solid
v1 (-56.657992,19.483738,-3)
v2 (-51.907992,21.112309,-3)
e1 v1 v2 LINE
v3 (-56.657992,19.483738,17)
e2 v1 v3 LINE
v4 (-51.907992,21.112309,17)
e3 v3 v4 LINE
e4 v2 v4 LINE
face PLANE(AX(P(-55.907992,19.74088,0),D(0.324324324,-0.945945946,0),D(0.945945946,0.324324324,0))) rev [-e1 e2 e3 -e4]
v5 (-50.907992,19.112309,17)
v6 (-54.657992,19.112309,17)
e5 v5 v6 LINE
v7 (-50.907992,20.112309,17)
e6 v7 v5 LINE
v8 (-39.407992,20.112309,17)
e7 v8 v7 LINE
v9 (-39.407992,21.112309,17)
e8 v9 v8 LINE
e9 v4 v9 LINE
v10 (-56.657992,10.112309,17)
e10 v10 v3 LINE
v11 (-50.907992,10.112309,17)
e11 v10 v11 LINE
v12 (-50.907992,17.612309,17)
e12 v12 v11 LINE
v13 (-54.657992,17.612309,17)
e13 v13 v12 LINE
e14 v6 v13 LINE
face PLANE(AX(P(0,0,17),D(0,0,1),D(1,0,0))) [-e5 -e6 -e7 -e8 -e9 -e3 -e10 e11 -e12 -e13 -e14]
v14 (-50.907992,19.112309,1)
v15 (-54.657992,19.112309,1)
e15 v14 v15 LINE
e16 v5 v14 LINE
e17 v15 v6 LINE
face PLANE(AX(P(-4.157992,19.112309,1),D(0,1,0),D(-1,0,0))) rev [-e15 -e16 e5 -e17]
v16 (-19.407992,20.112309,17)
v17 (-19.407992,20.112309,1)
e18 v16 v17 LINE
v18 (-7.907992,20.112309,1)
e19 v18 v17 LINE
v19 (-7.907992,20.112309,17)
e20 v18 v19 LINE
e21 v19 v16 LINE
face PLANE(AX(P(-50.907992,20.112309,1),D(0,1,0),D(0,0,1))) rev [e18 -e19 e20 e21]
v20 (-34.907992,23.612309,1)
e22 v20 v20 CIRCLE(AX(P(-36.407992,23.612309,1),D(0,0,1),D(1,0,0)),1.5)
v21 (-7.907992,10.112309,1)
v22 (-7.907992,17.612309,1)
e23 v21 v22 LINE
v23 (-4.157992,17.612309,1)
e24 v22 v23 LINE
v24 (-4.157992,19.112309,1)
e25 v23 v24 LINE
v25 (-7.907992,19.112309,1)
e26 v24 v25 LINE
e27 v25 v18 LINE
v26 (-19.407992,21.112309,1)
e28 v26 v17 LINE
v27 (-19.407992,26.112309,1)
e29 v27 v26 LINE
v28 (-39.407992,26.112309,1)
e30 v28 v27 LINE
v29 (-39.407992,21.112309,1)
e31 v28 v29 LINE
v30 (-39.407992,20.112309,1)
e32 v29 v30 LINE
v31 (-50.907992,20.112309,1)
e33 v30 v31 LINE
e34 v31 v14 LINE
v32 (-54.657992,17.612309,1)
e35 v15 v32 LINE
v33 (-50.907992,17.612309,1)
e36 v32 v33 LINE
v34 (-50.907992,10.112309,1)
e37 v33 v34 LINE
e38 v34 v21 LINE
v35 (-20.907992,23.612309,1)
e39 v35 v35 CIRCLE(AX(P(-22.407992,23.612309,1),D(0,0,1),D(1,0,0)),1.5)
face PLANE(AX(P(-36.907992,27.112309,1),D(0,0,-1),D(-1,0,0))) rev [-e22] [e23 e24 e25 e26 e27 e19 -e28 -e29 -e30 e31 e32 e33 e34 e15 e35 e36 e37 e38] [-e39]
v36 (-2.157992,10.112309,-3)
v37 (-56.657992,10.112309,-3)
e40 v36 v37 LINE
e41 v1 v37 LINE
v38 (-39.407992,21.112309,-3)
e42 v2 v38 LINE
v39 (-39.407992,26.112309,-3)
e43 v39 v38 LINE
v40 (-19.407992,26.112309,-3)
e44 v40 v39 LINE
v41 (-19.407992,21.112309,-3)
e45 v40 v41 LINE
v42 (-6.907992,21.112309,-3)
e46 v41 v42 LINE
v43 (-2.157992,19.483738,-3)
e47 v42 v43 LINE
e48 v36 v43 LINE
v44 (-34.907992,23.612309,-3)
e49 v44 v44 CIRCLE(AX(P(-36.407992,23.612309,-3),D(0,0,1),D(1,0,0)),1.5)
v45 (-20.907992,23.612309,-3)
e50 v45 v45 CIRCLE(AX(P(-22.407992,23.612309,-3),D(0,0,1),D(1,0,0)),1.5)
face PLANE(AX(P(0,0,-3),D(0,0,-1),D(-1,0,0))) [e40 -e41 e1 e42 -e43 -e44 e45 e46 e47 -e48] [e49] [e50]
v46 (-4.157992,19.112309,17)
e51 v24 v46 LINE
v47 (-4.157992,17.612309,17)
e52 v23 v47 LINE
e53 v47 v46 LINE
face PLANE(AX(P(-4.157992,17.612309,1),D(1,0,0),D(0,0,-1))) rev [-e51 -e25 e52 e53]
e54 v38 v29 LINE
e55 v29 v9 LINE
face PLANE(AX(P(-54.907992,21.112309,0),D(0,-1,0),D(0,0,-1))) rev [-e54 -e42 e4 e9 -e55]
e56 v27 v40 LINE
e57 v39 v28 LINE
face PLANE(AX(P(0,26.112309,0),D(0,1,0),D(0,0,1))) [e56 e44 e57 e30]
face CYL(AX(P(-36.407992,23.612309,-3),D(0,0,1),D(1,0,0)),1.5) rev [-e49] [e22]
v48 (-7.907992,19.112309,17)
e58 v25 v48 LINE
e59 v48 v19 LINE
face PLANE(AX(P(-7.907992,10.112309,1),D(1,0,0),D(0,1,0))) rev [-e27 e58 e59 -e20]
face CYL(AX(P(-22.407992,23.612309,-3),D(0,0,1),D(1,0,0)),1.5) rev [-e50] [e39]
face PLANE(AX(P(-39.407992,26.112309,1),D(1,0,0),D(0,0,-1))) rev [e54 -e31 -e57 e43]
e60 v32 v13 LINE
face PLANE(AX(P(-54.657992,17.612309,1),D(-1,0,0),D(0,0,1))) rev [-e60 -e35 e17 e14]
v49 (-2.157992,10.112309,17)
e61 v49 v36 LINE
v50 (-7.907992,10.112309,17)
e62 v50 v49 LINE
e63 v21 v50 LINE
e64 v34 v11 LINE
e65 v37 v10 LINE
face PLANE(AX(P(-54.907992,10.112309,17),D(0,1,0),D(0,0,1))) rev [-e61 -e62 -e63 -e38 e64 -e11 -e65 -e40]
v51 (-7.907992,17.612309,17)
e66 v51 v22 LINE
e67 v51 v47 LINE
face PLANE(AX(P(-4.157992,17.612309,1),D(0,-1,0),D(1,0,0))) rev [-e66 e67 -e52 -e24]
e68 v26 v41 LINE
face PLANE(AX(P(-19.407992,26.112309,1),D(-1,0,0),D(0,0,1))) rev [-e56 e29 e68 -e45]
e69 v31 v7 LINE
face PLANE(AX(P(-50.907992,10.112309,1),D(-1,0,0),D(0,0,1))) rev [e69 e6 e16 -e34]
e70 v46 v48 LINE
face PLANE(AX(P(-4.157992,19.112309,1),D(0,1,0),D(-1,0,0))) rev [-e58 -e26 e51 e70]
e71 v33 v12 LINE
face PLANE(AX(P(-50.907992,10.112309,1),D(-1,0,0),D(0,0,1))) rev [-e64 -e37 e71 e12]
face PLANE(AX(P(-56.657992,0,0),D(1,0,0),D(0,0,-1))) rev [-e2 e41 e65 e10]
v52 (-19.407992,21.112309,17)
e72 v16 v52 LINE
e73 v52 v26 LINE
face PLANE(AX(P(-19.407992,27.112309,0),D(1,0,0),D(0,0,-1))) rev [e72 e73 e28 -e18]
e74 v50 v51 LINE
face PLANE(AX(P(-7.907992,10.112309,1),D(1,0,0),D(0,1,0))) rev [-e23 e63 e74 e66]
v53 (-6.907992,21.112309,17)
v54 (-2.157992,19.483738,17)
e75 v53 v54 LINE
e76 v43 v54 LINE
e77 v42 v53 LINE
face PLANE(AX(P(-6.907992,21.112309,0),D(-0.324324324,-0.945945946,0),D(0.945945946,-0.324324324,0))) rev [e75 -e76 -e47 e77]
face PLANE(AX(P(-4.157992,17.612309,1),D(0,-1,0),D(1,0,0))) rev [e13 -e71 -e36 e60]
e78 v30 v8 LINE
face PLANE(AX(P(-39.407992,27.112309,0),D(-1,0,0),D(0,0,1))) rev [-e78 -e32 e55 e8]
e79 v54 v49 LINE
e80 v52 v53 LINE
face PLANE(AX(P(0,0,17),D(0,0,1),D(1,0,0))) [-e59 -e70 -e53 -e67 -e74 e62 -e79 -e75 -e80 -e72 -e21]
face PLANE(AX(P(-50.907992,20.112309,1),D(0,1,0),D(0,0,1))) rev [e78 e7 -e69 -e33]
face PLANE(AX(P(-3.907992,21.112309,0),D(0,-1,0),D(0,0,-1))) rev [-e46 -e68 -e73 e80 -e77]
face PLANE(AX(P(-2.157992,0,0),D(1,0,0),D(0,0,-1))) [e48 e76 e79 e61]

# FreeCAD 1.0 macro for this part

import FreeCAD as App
import Part
import Sketcher
from FreeCAD import Vector


def add_polygon(sketch, points):
    """Adds a closed chain of lines whose ends are joined by coincident constraints."""
    first, n = sketch.GeometryCount, len(points)
    for a, b in zip(points, points[1:] + points[:1]):
        sketch.addGeometry(Part.LineSegment(App.Vector(*a, 0), App.Vector(*b, 0)), False)
    for i in range(n):
        sketch.addConstraint(Sketcher.Constraint("Coincident", first + i, 2, first + (i + 1) % n, 1))

doc = App.newDocument("Part")
body = doc.addObject("PartDesign::Body", "Body")

# Sketch on XY plane
sketch1 = body.newObject("Sketcher::SketchObject", "Sketch")
sketch1.AttachmentSupport = (doc.getObject("XY_Plane"), [""])
sketch1.MapMode = "FlatFace"
add_polygon(sketch1, [(-55, 27), (-55, 10), (-4, 10), (-4, 27)])  # lines 0-3
sketch1.addConstraint(Sketcher.Constraint("Vertical", 0))
sketch1.addConstraint(Sketcher.Constraint("Horizontal", 1))
sketch1.addConstraint(Sketcher.Constraint("Vertical", 2))
sketch1.addConstraint(Sketcher.Constraint("Horizontal", 3))
sketch1.addConstraint(Sketcher.Constraint("DistanceX", 1, 1, 1, 2, 51.0))
sketch1.addConstraint(Sketcher.Constraint("DistanceY", 0, 2, 0, 1, 17.0))
sketch1.addConstraint(Sketcher.Constraint("DistanceX", 0, 2, -1, 1, 54.907992))
sketch1.addConstraint(Sketcher.Constraint("DistanceY", -1, 1, 0, 2, 10.112309))
pad1 = body.newObject("PartDesign::Pad", "Pad")
pad1.Profile = sketch1
pad1.Length = 17

# Sketch on XZ plane
sketch2 = body.newObject("Sketcher::SketchObject", "Sketch001")
sketch2.AttachmentSupport = (doc.getObject("XZ_Plane"), [""])
sketch2.MapMode = "FlatFace"
sketch2.AttachmentOffset = App.Placement(Vector(0, 0, -10.112309), App.Rotation())
add_polygon(sketch2, [(-37, 17), (-37, 1), (-22, 1), (-22, 17)])  # lines 0-3
sketch2.addConstraint(Sketcher.Constraint("Vertical", 0))
sketch2.addConstraint(Sketcher.Constraint("Horizontal", 1))
sketch2.addConstraint(Sketcher.Constraint("Vertical", 2))
sketch2.addConstraint(Sketcher.Constraint("Horizontal", 3))
sketch2.addConstraint(Sketcher.Constraint("DistanceX", 1, 1, 1, 2, 15.0))
sketch2.addConstraint(Sketcher.Constraint("DistanceY", 0, 2, 0, 1, 16.0))
sketch2.addConstraint(Sketcher.Constraint("DistanceY", -1, 1, 0, 2, 1.0))
sketch2.addConstraint(Sketcher.Constraint("DistanceX", 0, 2, -1, 1, 36.907992))
pocket1 = body.newObject("PartDesign::Pocket", "Pocket")
pocket1.Profile = sketch2
pocket1.Length = 17

# Sketch on XY plane
sketch3 = body.newObject("Sketcher::SketchObject", "Sketch002")
sketch3.AttachmentSupport = (doc.getObject("XY_Plane"), [""])
sketch3.MapMode = "FlatFace"
sketch3.AttachmentOffset = App.Placement(Vector(0, 0, 17), App.Rotation())
add_polygon(sketch3, [(-51, 20), (-51, 10), (-8, 10), (-8, 20)])  # lines 0-3
sketch3.addConstraint(Sketcher.Constraint("Vertical", 0))
sketch3.addConstraint(Sketcher.Constraint("Horizontal", 1))
sketch3.addConstraint(Sketcher.Constraint("Vertical", 2))
sketch3.addConstraint(Sketcher.Constraint("Horizontal", 3))
sketch3.addConstraint(Sketcher.Constraint("DistanceX", 1, 1, 1, 2, 43.0))
sketch3.addConstraint(Sketcher.Constraint("DistanceY", 0, 2, 0, 1, 10.0))
sketch3.addConstraint(Sketcher.Constraint("DistanceX", 0, 2, -1, 1, 50.907992))
sketch3.addConstraint(Sketcher.Constraint("DistanceY", -1, 1, 0, 2, 10.112309))
pocket2 = body.newObject("PartDesign::Pocket", "Pocket001")
pocket2.Profile = sketch3
pocket2.Length = 16

# Sketch on XY plane
sketch4 = body.newObject("Sketcher::SketchObject", "Sketch003")
sketch4.AttachmentSupport = (doc.getObject("XY_Plane"), [""])
sketch4.MapMode = "FlatFace"
sketch4.AttachmentOffset = App.Placement(Vector(0, 0, 17), App.Rotation())
add_polygon(sketch4, [(-54.7, 19.1), (-54.7, 17.6), (-4.2, 17.6), (-4.2, 19.1)])  # lines 0-3
sketch4.addConstraint(Sketcher.Constraint("Vertical", 0))
sketch4.addConstraint(Sketcher.Constraint("Horizontal", 1))
sketch4.addConstraint(Sketcher.Constraint("Vertical", 2))
sketch4.addConstraint(Sketcher.Constraint("Horizontal", 3))
sketch4.addConstraint(Sketcher.Constraint("DistanceX", 1, 1, 1, 2, 50.5))
sketch4.addConstraint(Sketcher.Constraint("DistanceY", 0, 2, 0, 1, 1.5))
sketch4.addConstraint(Sketcher.Constraint("DistanceX", 0, 2, -1, 1, 54.657992))
sketch4.addConstraint(Sketcher.Constraint("DistanceY", -1, 1, 0, 2, 17.612309))
pocket3 = body.newObject("PartDesign::Pocket", "Pocket002")
pocket3.Profile = sketch4
pocket3.Length = 16

# Sketch on XY plane
sketch5 = body.newObject("Sketcher::SketchObject", "Sketch004")
sketch5.AttachmentSupport = (doc.getObject("XY_Plane"), [""])
sketch5.MapMode = "FlatFace"
add_polygon(sketch5, [(-10, 27), (-10, 21), (-4, 21), (-4, 27)])  # lines 0-3
add_polygon(sketch5, [(-55, 27), (-55, 21), (-49, 21), (-49, 27)])  # lines 4-7
add_polygon(sketch5, [(-39, 27), (-39, 20), (-19, 20), (-19, 27)])  # lines 8-11
sketch5.addConstraint(Sketcher.Constraint("Vertical", 0))
sketch5.addConstraint(Sketcher.Constraint("Horizontal", 1))
sketch5.addConstraint(Sketcher.Constraint("Vertical", 2))
sketch5.addConstraint(Sketcher.Constraint("Horizontal", 3))
sketch5.addConstraint(Sketcher.Constraint("Vertical", 4))
sketch5.addConstraint(Sketcher.Constraint("Horizontal", 5))
sketch5.addConstraint(Sketcher.Constraint("Vertical", 6))
sketch5.addConstraint(Sketcher.Constraint("Horizontal", 7))
sketch5.addConstraint(Sketcher.Constraint("Vertical", 8))
sketch5.addConstraint(Sketcher.Constraint("Horizontal", 9))
sketch5.addConstraint(Sketcher.Constraint("Vertical", 10))
sketch5.addConstraint(Sketcher.Constraint("Horizontal", 11))
sketch5.addConstraint(Sketcher.Constraint("Horizontal", 1, 2, 4, 2))
sketch5.addConstraint(Sketcher.Constraint("Horizontal", 3, 2, 6, 2))
sketch5.addConstraint(Sketcher.Constraint("Horizontal", 7, 2, 10, 2))
sketch5.addConstraint(Sketcher.Constraint("Equal", 3, 5))
sketch5.addConstraint(Sketcher.Constraint("Equal", 7, 0))
sketch5.addConstraint(Sketcher.Constraint("DistanceX", 1, 1, 1, 2, 6.0))
sketch5.addConstraint(Sketcher.Constraint("DistanceX", 9, 1, 9, 2, 20.0))
sketch5.addConstraint(Sketcher.Constraint("DistanceY", 8, 2, 8, 1, 7.0))
sketch5.addConstraint(Sketcher.Constraint("DistanceX", 4, 2, 0, 2, 45.0))
sketch5.addConstraint(Sketcher.Constraint("DistanceX", 5, 2, 8, 2, 9.5))
sketch5.addConstraint(Sketcher.Constraint("DistanceX", 0, 2, -1, 1, 9.907992))
sketch5.addConstraint(Sketcher.Constraint("DistanceY", -1, 1, 0, 2, 21.112309))
pocket4 = body.newObject("PartDesign::Pocket", "Pocket003")
pocket4.Profile = sketch5
pocket4.Length = 17
pocket4.Reversed = True

# Sketch on YZ plane
sketch6 = body.newObject("Sketcher::SketchObject", "Sketch005")
sketch6.AttachmentSupport = (doc.getObject("YZ_Plane"), [""])
sketch6.MapMode = "FlatFace"
sketch6.AttachmentOffset = App.Placement(Vector(0, 0, -48.907992), App.Rotation())
add_polygon(sketch6, [(27, 10), (21, 10), (21, 0), (27, 0)])  # lines 0-3
sketch6.addConstraint(Sketcher.Constraint("Horizontal", 0))
sketch6.addConstraint(Sketcher.Constraint("Vertical", 1))
sketch6.addConstraint(Sketcher.Constraint("Horizontal", 2))
sketch6.addConstraint(Sketcher.Constraint("Vertical", 3))
sketch6.addConstraint(Sketcher.Constraint("PointOnObject", 1, 2, -1))
sketch6.addConstraint(Sketcher.Constraint("DistanceX", 0, 2, 0, 1, 6.0))
sketch6.addConstraint(Sketcher.Constraint("DistanceY", 1, 2, 1, 1, 10.0))
sketch6.addConstraint(Sketcher.Constraint("DistanceX", -1, 1, 0, 2, 21.112309))
pocket5 = body.newObject("PartDesign::Pocket", "Pocket004")
pocket5.Profile = sketch6
pocket5.Length = 39
pocket5.Reversed = True

# Sketch on YZ plane
sketch7 = body.newObject("Sketcher::SketchObject", "Sketch006")
sketch7.AttachmentSupport = (doc.getObject("YZ_Plane"), [""])
sketch7.MapMode = "FlatFace"
sketch7.AttachmentOffset = App.Placement(Vector(0, 0, -54.907992), App.Rotation())
add_polygon(sketch7, [(21, 0), (10, 0), (10, 17), (21, 17)])  # lines 0-3
sketch7.addConstraint(Sketcher.Constraint("Horizontal", 0))
sketch7.addConstraint(Sketcher.Constraint("Vertical", 1))
sketch7.addConstraint(Sketcher.Constraint("Horizontal", 2))
sketch7.addConstraint(Sketcher.Constraint("Vertical", 3))
sketch7.addConstraint(Sketcher.Constraint("PointOnObject", 0, 2, -1))
sketch7.addConstraint(Sketcher.Constraint("DistanceX", 0, 2, 0, 1, 11.0))
sketch7.addConstraint(Sketcher.Constraint("DistanceY", 1, 1, 1, 2, 17.0))
sketch7.addConstraint(Sketcher.Constraint("DistanceX", -1, 1, 0, 2, 10.112309))
pad2 = body.newObject("PartDesign::Pad", "Pad001")
pad2.Profile = sketch7
pad2.Length = 1
pad2.Reversed = True

# Sketch on YZ plane
sketch8 = body.newObject("Sketcher::SketchObject", "Sketch007")
sketch8.AttachmentSupport = (doc.getObject("YZ_Plane"), [""])
sketch8.MapMode = "FlatFace"
sketch8.AttachmentOffset = App.Placement(Vector(0, 0, -3.907992), App.Rotation())
add_polygon(sketch8, [(21, 17), (10, 17), (10, 0), (21, 0)])  # lines 0-3
sketch8.addConstraint(Sketcher.Constraint("Horizontal", 0))
sketch8.addConstraint(Sketcher.Constraint("Vertical", 1))
sketch8.addConstraint(Sketcher.Constraint("Horizontal", 2))
sketch8.addConstraint(Sketcher.Constraint("Vertical", 3))
sketch8.addConstraint(Sketcher.Constraint("PointOnObject", 1, 2, -1))
sketch8.addConstraint(Sketcher.Constraint("DistanceX", 0, 2, 0, 1, 11.0))
sketch8.addConstraint(Sketcher.Constraint("DistanceY", 1, 2, 1, 1, 17.0))
sketch8.addConstraint(Sketcher.Constraint("DistanceX", -1, 1, 0, 2, 10.112309))
pad3 = body.newObject("PartDesign::Pad", "Pad002")
pad3.Profile = sketch8
pad3.Length = 1

# Sketch on XY plane
sketch9 = body.newObject("Sketcher::SketchObject", "Sketch008")
sketch9.AttachmentSupport = (doc.getObject("XY_Plane"), [""])
sketch9.MapMode = "FlatFace"
add_polygon(sketch9, [(-51.9, 21.1), (-55.9, 21.1), (-55.9, 19.7)])  # lines 0-2
add_polygon(sketch9, [(-2.9, 21.1), (-6.9, 21.1), (-2.9, 19.7)])  # lines 3-5
sketch9.addConstraint(Sketcher.Constraint("Horizontal", 0))
sketch9.addConstraint(Sketcher.Constraint("Vertical", 1))
sketch9.addConstraint(Sketcher.Constraint("Horizontal", 3))
sketch9.addConstraint(Sketcher.Constraint("Vertical", 5))
sketch9.addConstraint(Sketcher.Constraint("Horizontal", 2, 2, 3, 2))
sketch9.addConstraint(Sketcher.Constraint("Horizontal", 1, 2, 4, 2))
sketch9.addConstraint(Sketcher.Constraint("Equal", 0, 3))
sketch9.addConstraint(Sketcher.Constraint("DistanceX", 0, 2, 0, 1, 4.0))
sketch9.addConstraint(Sketcher.Constraint("DistanceX", 2, 2, 3, 2, 45.0))
sketch9.addConstraint(Sketcher.Constraint("DistanceY", 1, 2, 1, 1, 1.371429))
sketch9.addConstraint(Sketcher.Constraint("DistanceX", 0, 2, -1, 1, 55.907992))
sketch9.addConstraint(Sketcher.Constraint("DistanceY", -1, 1, 0, 2, 21.112309))
pocket6 = body.newObject("PartDesign::Pocket", "Pocket005")
pocket6.Profile = sketch9
pocket6.Length = 17
pocket6.Reversed = True

# Sketch on XY plane
sketch10 = body.newObject("Sketcher::SketchObject", "Sketch009")
sketch10.AttachmentSupport = (doc.getObject("XY_Plane"), [""])
sketch10.MapMode = "FlatFace"
sketch10.AttachmentOffset = App.Placement(Vector(0, 0, 17), App.Rotation())
add_polygon(sketch10, [(-49, 27), (-49, 21), (-39, 21), (-39, 27)])  # lines 0-3
add_polygon(sketch10, [(-19, 27), (-19, 21), (-10, 21), (-10, 27)])  # lines 4-7
sketch10.addConstraint(Sketcher.Constraint("Vertical", 0))
sketch10.addConstraint(Sketcher.Constraint("Horizontal", 1))
sketch10.addConstraint(Sketcher.Constraint("Vertical", 2))
sketch10.addConstraint(Sketcher.Constraint("Horizontal", 3))
sketch10.addConstraint(Sketcher.Constraint("Vertical", 4))
sketch10.addConstraint(Sketcher.Constraint("Horizontal", 5))
sketch10.addConstraint(Sketcher.Constraint("Vertical", 6))
sketch10.addConstraint(Sketcher.Constraint("Horizontal", 7))
sketch10.addConstraint(Sketcher.Constraint("Horizontal", 1, 2, 4, 2))
sketch10.addConstraint(Sketcher.Constraint("Horizontal", 3, 2, 6, 2))
sketch10.addConstraint(Sketcher.Constraint("Equal", 3, 5))
sketch10.addConstraint(Sketcher.Constraint("DistanceY", 0, 2, 0, 1, 6.0))
sketch10.addConstraint(Sketcher.Constraint("DistanceX", 1, 1, 1, 2, 9.5))
sketch10.addConstraint(Sketcher.Constraint("DistanceX", 1, 2, 4, 2, 20.0))
sketch10.addConstraint(Sketcher.Constraint("DistanceX", 0, 2, -1, 1, 48.907992))
sketch10.addConstraint(Sketcher.Constraint("DistanceY", -1, 1, 0, 2, 21.112309))
pocket7 = body.newObject("PartDesign::Pocket", "Pocket006")
pocket7.Profile = sketch10
pocket7.Length = 7

# Sketch on XY plane
sketch11 = body.newObject("Sketcher::SketchObject", "Sketch010")
sketch11.AttachmentSupport = (doc.getObject("XY_Plane"), [""])
sketch11.MapMode = "FlatFace"
add_polygon(sketch11, [(-55.9, 10.1), (-55.9, 19.7), (-51.9, 21.1), (-39.4, 21.1), (-39.4, 20.1), (-19.4, 20.1), (-19.4, 21.1), (-6.9, 21.1), (-2.9, 19.7), (-2.9, 10.1)])  # lines 0-9
sketch11.addConstraint(Sketcher.Constraint("Vertical", 0))
sketch11.addConstraint(Sketcher.Constraint("Horizontal", 2))
sketch11.addConstraint(Sketcher.Constraint("Vertical", 3))
sketch11.addConstraint(Sketcher.Constraint("Horizontal", 4))
sketch11.addConstraint(Sketcher.Constraint("Vertical", 5))
sketch11.addConstraint(Sketcher.Constraint("Horizontal", 6))
sketch11.addConstraint(Sketcher.Constraint("Vertical", 8))
sketch11.addConstraint(Sketcher.Constraint("Horizontal", 9))
sketch11.addConstraint(Sketcher.Constraint("Horizontal", 2, 2, 5, 2))
sketch11.addConstraint(Sketcher.Constraint("Horizontal", 0, 2, 7, 2))
sketch11.addConstraint(Sketcher.Constraint("Equal", 2, 6))
sketch11.addConstraint(Sketcher.Constraint("Equal", 1, 7))
sketch11.addConstraint(Sketcher.Constraint("DistanceX", 4, 1, 4, 2, 20.0))
sketch11.addConstraint(Sketcher.Constraint("DistanceX", 9, 2, 9, 1, 53.0))
sketch11.addConstraint(Sketcher.Constraint("DistanceY", 3, 2, 3, 1, 1.0))
sketch11.addConstraint(Sketcher.Constraint("DistanceX", 2, 1, 2, 2, 12.5))
sketch11.addConstraint(Sketcher.Constraint("DistanceY", 8, 2, 6, 2, 11.0))
sketch11.addConstraint(Sketcher.Constraint("DistanceY", 0, 1, 0, 2, 9.628571))
sketch11.addConstraint(Sketcher.Constraint("DistanceX", 0, 2, -1, 1, 55.907992))
sketch11.addConstraint(Sketcher.Constraint("DistanceY", -1, 1, 0, 2, 19.74088))
pad4 = body.newObject("PartDesign::Pad", "Pad003")
pad4.Profile = sketch11
pad4.Length = 3
pad4.Reversed = True

# Sketch on XZ plane
sketch12 = body.newObject("Sketcher::SketchObject", "Sketch011")
sketch12.AttachmentSupport = (doc.getObject("XZ_Plane"), [""])
sketch12.MapMode = "FlatFace"
sketch12.AttachmentOffset = App.Placement(Vector(0, 0, -20.112309), App.Rotation())
add_polygon(sketch12, [(-39.4, -3), (-39.4, 1), (-19.4, 1), (-19.4, -3)])  # lines 0-3
sketch12.addConstraint(Sketcher.Constraint("Vertical", 0))
sketch12.addConstraint(Sketcher.Constraint("Horizontal", 1))
sketch12.addConstraint(Sketcher.Constraint("Vertical", 2))
sketch12.addConstraint(Sketcher.Constraint("Horizontal", 3))
sketch12.addConstraint(Sketcher.Constraint("DistanceX", 1, 1, 1, 2, 20.0))
sketch12.addConstraint(Sketcher.Constraint("DistanceY", 0, 1, 0, 2, 4.0))
sketch12.addConstraint(Sketcher.Constraint("DistanceY", -1, 1, 0, 2, 1.0))
sketch12.addConstraint(Sketcher.Constraint("DistanceX", 0, 2, -1, 1, 39.407992))
pad5 = body.newObject("PartDesign::Pad", "Pad004")
pad5.Profile = sketch12
pad5.Length = 6
pad5.Reversed = True

# Sketch on XY plane
sketch13 = body.newObject("Sketcher::SketchObject", "Sketch012")
sketch13.AttachmentSupport = (doc.getObject("XY_Plane"), [""])
sketch13.MapMode = "FlatFace"
sketch13.AttachmentOffset = App.Placement(Vector(0, 0, 1), App.Rotation())
sketch13.addGeometry(Part.Circle(Vector(-22.4, 23.6, 0), Vector(0, 0, 1), 1.5), False)
sketch13.addGeometry(Part.Circle(Vector(-36.4, 23.6, 0), Vector(0, 0, 1), 1.5), False)
sketch13.addConstraint(Sketcher.Constraint("Equal", 0, 1))
sketch13.addConstraint(Sketcher.Constraint("Horizontal", 0, 3, 1, 3))
sketch13.addConstraint(Sketcher.Constraint("Diameter", 0, 3.0))
sketch13.addConstraint(Sketcher.Constraint("DistanceX", 1, 3, 0, 3, 14.0))
sketch13.addConstraint(Sketcher.Constraint("DistanceX", 0, 3, -1, 1, 22.407992))
sketch13.addConstraint(Sketcher.Constraint("DistanceY", -1, 1, 0, 3, 23.612309))
pocket8 = body.newObject("PartDesign::Pocket", "Pocket007")
pocket8.Profile = sketch13
pocket8.Length = 4

# Sketch on YZ plane
sketch14 = body.newObject("Sketcher::SketchObject", "Sketch013")
sketch14.AttachmentSupport = (doc.getObject("YZ_Plane"), [""])
sketch14.MapMode = "FlatFace"
sketch14.AttachmentOffset = App.Placement(Vector(0, 0, -55.907992), App.Rotation())
add_polygon(sketch14, [(20, -3), (10, -3), (10, 17), (20, 17)])  # lines 0-3
sketch14.addConstraint(Sketcher.Constraint("Horizontal", 0))
sketch14.addConstraint(Sketcher.Constraint("Vertical", 1))
sketch14.addConstraint(Sketcher.Constraint("Horizontal", 2))
sketch14.addConstraint(Sketcher.Constraint("Vertical", 3))
sketch14.addConstraint(Sketcher.Constraint("DistanceY", 1, 1, 1, 2, 20.0))
sketch14.addConstraint(Sketcher.Constraint("DistanceY", 0, 2, -1, 1, 3.0))
sketch14.addConstraint(Sketcher.Constraint("DistanceX", 0, 2, 0, 1, 9.628571))
sketch14.addConstraint(Sketcher.Constraint("DistanceX", -1, 1, 0, 2, 10.112309))
pad6 = body.newObject("PartDesign::Pad", "Pad005")
pad6.Profile = sketch14
pad6.Length = 0.75
pad6.Reversed = True

# Sketch on YZ plane
sketch15 = body.newObject("Sketcher::SketchObject", "Sketch014")
sketch15.AttachmentSupport = (doc.getObject("YZ_Plane"), [""])
sketch15.MapMode = "FlatFace"
sketch15.AttachmentOffset = App.Placement(Vector(0, 0, -2.907992), App.Rotation())
add_polygon(sketch15, [(20, 17), (10, 17), (10, -3), (20, -3)])  # lines 0-3
sketch15.addConstraint(Sketcher.Constraint("Horizontal", 0))
sketch15.addConstraint(Sketcher.Constraint("Vertical", 1))
sketch15.addConstraint(Sketcher.Constraint("Horizontal", 2))
sketch15.addConstraint(Sketcher.Constraint("Vertical", 3))
sketch15.addConstraint(Sketcher.Constraint("DistanceY", 1, 2, 1, 1, 20.0))
sketch15.addConstraint(Sketcher.Constraint("DistanceY", -1, 1, 0, 2, 17.0))
sketch15.addConstraint(Sketcher.Constraint("DistanceX", 0, 2, 0, 1, 9.628571))
sketch15.addConstraint(Sketcher.Constraint("DistanceX", -1, 1, 0, 2, 10.112309))
pad7 = body.newObject("PartDesign::Pad", "Pad006")
pad7.Profile = sketch15
pad7.Length = 0.75

# Sketch on XY plane
sketch16 = body.newObject("Sketcher::SketchObject", "Sketch015")
sketch16.AttachmentSupport = (doc.getObject("XY_Plane"), [""])
sketch16.MapMode = "FlatFace"
sketch16.AttachmentOffset = App.Placement(Vector(0, 0, -3), App.Rotation())
add_polygon(sketch16, [(-56.66, 19.74), (-56.66, 19.48), (-55.91, 19.74)])  # lines 0-2
add_polygon(sketch16, [(-2.16, 19.48), (-2.16, 19.74), (-2.91, 19.74)])  # lines 3-5
sketch16.addConstraint(Sketcher.Constraint("Vertical", 0))
sketch16.addConstraint(Sketcher.Constraint("Horizontal", 2))
sketch16.addConstraint(Sketcher.Constraint("Vertical", 3))
sketch16.addConstraint(Sketcher.Constraint("Horizontal", 4))
sketch16.addConstraint(Sketcher.Constraint("Horizontal", 2, 2, 3, 2))
sketch16.addConstraint(Sketcher.Constraint("Horizontal", 0, 2, 5, 2))
sketch16.addConstraint(Sketcher.Constraint("Equal", 2, 4))
sketch16.addConstraint(Sketcher.Constraint("DistanceX", 1, 2, 4, 2, 53.0))
sketch16.addConstraint(Sketcher.Constraint("DistanceX", 2, 2, 2, 1, 0.75))
sketch16.addConstraint(Sketcher.Constraint("DistanceY", 0, 2, 0, 1, 0.257143))
sketch16.addConstraint(Sketcher.Constraint("DistanceX", 0, 2, -1, 1, 56.657992))
sketch16.addConstraint(Sketcher.Constraint("DistanceY", -1, 1, 1, 2, 19.74088))
pocket9 = body.newObject("PartDesign::Pocket", "Pocket008")
pocket9.Profile = sketch16
pocket9.Length = 20
pocket9.Reversed = True

doc.recompute()
